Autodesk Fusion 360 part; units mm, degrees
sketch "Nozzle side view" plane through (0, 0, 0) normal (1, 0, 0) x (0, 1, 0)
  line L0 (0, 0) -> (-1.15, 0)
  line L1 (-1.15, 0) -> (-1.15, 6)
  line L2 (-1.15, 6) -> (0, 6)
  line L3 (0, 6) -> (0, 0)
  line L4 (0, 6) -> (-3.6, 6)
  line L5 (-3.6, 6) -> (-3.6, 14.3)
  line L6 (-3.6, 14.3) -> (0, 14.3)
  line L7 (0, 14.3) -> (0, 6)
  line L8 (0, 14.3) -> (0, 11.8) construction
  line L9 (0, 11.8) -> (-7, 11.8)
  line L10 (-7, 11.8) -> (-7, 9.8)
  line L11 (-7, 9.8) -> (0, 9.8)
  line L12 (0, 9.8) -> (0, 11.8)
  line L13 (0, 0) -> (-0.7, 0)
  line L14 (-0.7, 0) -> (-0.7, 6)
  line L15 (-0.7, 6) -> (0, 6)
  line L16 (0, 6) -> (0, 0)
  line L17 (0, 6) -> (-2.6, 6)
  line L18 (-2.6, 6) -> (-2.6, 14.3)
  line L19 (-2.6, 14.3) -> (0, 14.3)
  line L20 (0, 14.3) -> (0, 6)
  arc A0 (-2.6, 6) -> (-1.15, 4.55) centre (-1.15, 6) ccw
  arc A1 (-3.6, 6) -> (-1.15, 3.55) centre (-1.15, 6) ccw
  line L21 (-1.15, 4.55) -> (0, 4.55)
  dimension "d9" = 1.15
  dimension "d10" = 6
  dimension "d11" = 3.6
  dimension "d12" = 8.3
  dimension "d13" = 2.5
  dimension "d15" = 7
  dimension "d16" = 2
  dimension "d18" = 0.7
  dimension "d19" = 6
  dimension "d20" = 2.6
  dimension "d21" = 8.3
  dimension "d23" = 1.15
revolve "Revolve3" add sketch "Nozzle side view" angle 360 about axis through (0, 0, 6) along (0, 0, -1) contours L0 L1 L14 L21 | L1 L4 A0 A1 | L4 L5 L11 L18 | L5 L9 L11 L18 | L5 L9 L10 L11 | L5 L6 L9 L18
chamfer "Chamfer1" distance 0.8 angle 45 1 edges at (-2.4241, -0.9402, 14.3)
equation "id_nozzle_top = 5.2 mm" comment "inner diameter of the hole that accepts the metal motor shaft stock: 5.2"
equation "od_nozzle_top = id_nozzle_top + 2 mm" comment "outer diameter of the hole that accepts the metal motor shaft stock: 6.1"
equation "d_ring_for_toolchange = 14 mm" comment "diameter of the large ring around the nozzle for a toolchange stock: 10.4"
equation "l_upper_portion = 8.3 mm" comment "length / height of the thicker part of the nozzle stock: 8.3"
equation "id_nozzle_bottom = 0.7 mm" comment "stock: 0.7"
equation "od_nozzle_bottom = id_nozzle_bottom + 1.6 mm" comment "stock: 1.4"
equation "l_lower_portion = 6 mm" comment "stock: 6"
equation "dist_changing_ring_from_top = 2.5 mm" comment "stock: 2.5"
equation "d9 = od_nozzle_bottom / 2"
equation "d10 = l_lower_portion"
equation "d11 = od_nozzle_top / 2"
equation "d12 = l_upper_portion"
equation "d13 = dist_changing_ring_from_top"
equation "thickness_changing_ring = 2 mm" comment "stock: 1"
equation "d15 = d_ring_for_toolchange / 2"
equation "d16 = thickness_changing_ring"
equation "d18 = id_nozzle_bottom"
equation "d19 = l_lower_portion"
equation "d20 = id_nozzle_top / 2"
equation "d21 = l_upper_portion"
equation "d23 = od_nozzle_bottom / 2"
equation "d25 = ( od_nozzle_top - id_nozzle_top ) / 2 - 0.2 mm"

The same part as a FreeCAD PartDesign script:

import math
import FreeCAD as App
import Part
import Sketcher
from FreeCAD import Vector
Q = App.Units.Quantity


def edges_at(feature, points):
    """Names of the edges that pass closest to the given points."""
    edges = feature.Shape.Edges
    near = lambda p: min(range(len(edges)), key=lambda i: edges[i].distToShape(Part.Vertex(*p))[0])
    return sorted({f"Edge{near(p) + 1}" for p in points})

doc = App.newDocument("Part")
body = doc.addObject("PartDesign::Body", "Body")

sketch1 = body.newObject("Sketcher::SketchObject", "Sketch")
sketch1.AttachmentSupport = (doc.getObject("YZ_Plane"), [""])
sketch1.MapMode = "FlatFace"
sketch1.addGeometry(Part.LineSegment(Vector(-1.15, 0, 0), Vector(-0.7, 0, 0)), False)
sketch1.addGeometry(Part.LineSegment(Vector(-0.7, 0, 0), Vector(-0.7, 4.55, 0)), False)
sketch1.addGeometry(Part.LineSegment(Vector(-0.7, 4.55, 0), Vector(-1.15, 4.55, 0)), False)
sketch1.addGeometry(Part.ArcOfCircle(Part.Circle(Vector(-1.15, 6, 0), Vector(0, 0, 1), 1.45), math.radians(180), math.radians(270)), False)
sketch1.addGeometry(Part.LineSegment(Vector(-2.6, 6, 0), Vector(-2.6, 14.3, 0)), False)
sketch1.addGeometry(Part.LineSegment(Vector(-2.6, 14.3, 0), Vector(-3.6, 14.3, 0)), False)
sketch1.addGeometry(Part.LineSegment(Vector(-3.6, 14.3, 0), Vector(-3.6, 11.8, 0)), False)
sketch1.addGeometry(Part.LineSegment(Vector(-3.6, 11.8, 0), Vector(-7, 11.8, 0)), False)
sketch1.addGeometry(Part.LineSegment(Vector(-7, 11.8, 0), Vector(-7, 9.8, 0)), False)
sketch1.addGeometry(Part.LineSegment(Vector(-7, 9.8, 0), Vector(-3.6, 9.8, 0)), False)
sketch1.addGeometry(Part.LineSegment(Vector(-3.6, 9.8, 0), Vector(-3.6, 6, 0)), False)
sketch1.addGeometry(Part.ArcOfCircle(Part.Circle(Vector(-1.15, 6, 0), Vector(0, 0, 1), 2.45), math.radians(180), math.radians(270)), False)
sketch1.addGeometry(Part.LineSegment(Vector(-1.15, 3.55, 0), Vector(-1.15, 0, 0)), False)
sketch1.addConstraint(Sketcher.Constraint("Coincident", 0, 2, 1, 1))
sketch1.addConstraint(Sketcher.Constraint("Coincident", 1, 2, 2, 1))
sketch1.addConstraint(Sketcher.Constraint("Tangent", 2, 2, 3, 2))
sketch1.addConstraint(Sketcher.Constraint("Tangent", 3, 1, 4, 1))
sketch1.addConstraint(Sketcher.Constraint("Coincident", 4, 2, 5, 1))
sketch1.addConstraint(Sketcher.Constraint("Coincident", 5, 2, 6, 1))
sketch1.addConstraint(Sketcher.Constraint("Coincident", 6, 2, 7, 1))
sketch1.addConstraint(Sketcher.Constraint("Coincident", 7, 2, 8, 1))
sketch1.addConstraint(Sketcher.Constraint("Coincident", 8, 2, 9, 1))
sketch1.addConstraint(Sketcher.Constraint("Coincident", 9, 2, 10, 1))
sketch1.addConstraint(Sketcher.Constraint("Tangent", 10, 2, 11, 1))
sketch1.addConstraint(Sketcher.Constraint("Coincident", 11, 2, 12, 1))
sketch1.addConstraint(Sketcher.Constraint("Coincident", 12, 2, 0, 1))
sketch1.addConstraint(Sketcher.Constraint("Horizontal", 0))
sketch1.addConstraint(Sketcher.Constraint("Vertical", 1))
sketch1.addConstraint(Sketcher.Constraint("Horizontal", 2))
sketch1.addConstraint(Sketcher.Constraint("Vertical", 4))
sketch1.addConstraint(Sketcher.Constraint("Horizontal", 5))
sketch1.addConstraint(Sketcher.Constraint("Vertical", 6))
sketch1.addConstraint(Sketcher.Constraint("Horizontal", 7))
sketch1.addConstraint(Sketcher.Constraint("Vertical", 8))
sketch1.addConstraint(Sketcher.Constraint("Horizontal", 9))
sketch1.addConstraint(Sketcher.Constraint("Vertical", 10))
sketch1.addConstraint(Sketcher.Constraint("Vertical", 12))
sketch1.addConstraint(Sketcher.Constraint("Coincident", 11, 3, 3, 3))
sketch1.addConstraint(Sketcher.Constraint("PointOnObject", 0, 2, -1))
sketch1.addConstraint(Sketcher.Constraint("Vertical", 6, 2, 9, 2))
sketch1.addConstraint(Sketcher.Constraint("Vertical", 2, 2, 11, 2))
sketch1.addConstraint(Sketcher.Constraint("DistanceY", 8, 2, 8, 1, Q("2 mm")))
sketch1.addConstraint(Sketcher.Constraint("DistanceY", 4, 1, 4, 2, Q("8.3 mm")))
sketch1.addConstraint(Sketcher.Constraint("DistanceY", 6, 2, 6, 1, Q("2.5 mm")))
sketch1.addConstraint(Sketcher.Constraint("DistanceY", -1, 1, 3, 3, Q("6 mm")))
sketch1.addConstraint(Sketcher.Constraint("DistanceX", 7, 2, -1, 1, Q("7 mm")))
sketch1.addConstraint(Sketcher.Constraint("DistanceX", 0, 2, -1, 1, Q("0.7 mm")))
sketch1.addConstraint(Sketcher.Constraint("DistanceX", 3, 1, -1, 1, Q("2.6 mm")))
sketch1.addConstraint(Sketcher.Constraint("DistanceX", 5, 2, -1, 1, Q("3.6 mm")))
sketch1.addConstraint(Sketcher.Constraint("DistanceX", 3, 3, -1, 1, Q("1.15 mm")))
revolution = body.newObject("PartDesign::Revolution", "Revolution")
revolution.Profile = sketch1
revolution.ReferenceAxis = (sketch1, ["V_Axis"])
revolution.Angle = 360
doc.recompute()

chamfer = body.newObject("PartDesign::Chamfer", "Chamfer")
chamfer.Base = (revolution, edges_at(revolution, [(-2.424, -0.94, 14.3)]))
chamfer.Size = 0.8

doc.recompute()
